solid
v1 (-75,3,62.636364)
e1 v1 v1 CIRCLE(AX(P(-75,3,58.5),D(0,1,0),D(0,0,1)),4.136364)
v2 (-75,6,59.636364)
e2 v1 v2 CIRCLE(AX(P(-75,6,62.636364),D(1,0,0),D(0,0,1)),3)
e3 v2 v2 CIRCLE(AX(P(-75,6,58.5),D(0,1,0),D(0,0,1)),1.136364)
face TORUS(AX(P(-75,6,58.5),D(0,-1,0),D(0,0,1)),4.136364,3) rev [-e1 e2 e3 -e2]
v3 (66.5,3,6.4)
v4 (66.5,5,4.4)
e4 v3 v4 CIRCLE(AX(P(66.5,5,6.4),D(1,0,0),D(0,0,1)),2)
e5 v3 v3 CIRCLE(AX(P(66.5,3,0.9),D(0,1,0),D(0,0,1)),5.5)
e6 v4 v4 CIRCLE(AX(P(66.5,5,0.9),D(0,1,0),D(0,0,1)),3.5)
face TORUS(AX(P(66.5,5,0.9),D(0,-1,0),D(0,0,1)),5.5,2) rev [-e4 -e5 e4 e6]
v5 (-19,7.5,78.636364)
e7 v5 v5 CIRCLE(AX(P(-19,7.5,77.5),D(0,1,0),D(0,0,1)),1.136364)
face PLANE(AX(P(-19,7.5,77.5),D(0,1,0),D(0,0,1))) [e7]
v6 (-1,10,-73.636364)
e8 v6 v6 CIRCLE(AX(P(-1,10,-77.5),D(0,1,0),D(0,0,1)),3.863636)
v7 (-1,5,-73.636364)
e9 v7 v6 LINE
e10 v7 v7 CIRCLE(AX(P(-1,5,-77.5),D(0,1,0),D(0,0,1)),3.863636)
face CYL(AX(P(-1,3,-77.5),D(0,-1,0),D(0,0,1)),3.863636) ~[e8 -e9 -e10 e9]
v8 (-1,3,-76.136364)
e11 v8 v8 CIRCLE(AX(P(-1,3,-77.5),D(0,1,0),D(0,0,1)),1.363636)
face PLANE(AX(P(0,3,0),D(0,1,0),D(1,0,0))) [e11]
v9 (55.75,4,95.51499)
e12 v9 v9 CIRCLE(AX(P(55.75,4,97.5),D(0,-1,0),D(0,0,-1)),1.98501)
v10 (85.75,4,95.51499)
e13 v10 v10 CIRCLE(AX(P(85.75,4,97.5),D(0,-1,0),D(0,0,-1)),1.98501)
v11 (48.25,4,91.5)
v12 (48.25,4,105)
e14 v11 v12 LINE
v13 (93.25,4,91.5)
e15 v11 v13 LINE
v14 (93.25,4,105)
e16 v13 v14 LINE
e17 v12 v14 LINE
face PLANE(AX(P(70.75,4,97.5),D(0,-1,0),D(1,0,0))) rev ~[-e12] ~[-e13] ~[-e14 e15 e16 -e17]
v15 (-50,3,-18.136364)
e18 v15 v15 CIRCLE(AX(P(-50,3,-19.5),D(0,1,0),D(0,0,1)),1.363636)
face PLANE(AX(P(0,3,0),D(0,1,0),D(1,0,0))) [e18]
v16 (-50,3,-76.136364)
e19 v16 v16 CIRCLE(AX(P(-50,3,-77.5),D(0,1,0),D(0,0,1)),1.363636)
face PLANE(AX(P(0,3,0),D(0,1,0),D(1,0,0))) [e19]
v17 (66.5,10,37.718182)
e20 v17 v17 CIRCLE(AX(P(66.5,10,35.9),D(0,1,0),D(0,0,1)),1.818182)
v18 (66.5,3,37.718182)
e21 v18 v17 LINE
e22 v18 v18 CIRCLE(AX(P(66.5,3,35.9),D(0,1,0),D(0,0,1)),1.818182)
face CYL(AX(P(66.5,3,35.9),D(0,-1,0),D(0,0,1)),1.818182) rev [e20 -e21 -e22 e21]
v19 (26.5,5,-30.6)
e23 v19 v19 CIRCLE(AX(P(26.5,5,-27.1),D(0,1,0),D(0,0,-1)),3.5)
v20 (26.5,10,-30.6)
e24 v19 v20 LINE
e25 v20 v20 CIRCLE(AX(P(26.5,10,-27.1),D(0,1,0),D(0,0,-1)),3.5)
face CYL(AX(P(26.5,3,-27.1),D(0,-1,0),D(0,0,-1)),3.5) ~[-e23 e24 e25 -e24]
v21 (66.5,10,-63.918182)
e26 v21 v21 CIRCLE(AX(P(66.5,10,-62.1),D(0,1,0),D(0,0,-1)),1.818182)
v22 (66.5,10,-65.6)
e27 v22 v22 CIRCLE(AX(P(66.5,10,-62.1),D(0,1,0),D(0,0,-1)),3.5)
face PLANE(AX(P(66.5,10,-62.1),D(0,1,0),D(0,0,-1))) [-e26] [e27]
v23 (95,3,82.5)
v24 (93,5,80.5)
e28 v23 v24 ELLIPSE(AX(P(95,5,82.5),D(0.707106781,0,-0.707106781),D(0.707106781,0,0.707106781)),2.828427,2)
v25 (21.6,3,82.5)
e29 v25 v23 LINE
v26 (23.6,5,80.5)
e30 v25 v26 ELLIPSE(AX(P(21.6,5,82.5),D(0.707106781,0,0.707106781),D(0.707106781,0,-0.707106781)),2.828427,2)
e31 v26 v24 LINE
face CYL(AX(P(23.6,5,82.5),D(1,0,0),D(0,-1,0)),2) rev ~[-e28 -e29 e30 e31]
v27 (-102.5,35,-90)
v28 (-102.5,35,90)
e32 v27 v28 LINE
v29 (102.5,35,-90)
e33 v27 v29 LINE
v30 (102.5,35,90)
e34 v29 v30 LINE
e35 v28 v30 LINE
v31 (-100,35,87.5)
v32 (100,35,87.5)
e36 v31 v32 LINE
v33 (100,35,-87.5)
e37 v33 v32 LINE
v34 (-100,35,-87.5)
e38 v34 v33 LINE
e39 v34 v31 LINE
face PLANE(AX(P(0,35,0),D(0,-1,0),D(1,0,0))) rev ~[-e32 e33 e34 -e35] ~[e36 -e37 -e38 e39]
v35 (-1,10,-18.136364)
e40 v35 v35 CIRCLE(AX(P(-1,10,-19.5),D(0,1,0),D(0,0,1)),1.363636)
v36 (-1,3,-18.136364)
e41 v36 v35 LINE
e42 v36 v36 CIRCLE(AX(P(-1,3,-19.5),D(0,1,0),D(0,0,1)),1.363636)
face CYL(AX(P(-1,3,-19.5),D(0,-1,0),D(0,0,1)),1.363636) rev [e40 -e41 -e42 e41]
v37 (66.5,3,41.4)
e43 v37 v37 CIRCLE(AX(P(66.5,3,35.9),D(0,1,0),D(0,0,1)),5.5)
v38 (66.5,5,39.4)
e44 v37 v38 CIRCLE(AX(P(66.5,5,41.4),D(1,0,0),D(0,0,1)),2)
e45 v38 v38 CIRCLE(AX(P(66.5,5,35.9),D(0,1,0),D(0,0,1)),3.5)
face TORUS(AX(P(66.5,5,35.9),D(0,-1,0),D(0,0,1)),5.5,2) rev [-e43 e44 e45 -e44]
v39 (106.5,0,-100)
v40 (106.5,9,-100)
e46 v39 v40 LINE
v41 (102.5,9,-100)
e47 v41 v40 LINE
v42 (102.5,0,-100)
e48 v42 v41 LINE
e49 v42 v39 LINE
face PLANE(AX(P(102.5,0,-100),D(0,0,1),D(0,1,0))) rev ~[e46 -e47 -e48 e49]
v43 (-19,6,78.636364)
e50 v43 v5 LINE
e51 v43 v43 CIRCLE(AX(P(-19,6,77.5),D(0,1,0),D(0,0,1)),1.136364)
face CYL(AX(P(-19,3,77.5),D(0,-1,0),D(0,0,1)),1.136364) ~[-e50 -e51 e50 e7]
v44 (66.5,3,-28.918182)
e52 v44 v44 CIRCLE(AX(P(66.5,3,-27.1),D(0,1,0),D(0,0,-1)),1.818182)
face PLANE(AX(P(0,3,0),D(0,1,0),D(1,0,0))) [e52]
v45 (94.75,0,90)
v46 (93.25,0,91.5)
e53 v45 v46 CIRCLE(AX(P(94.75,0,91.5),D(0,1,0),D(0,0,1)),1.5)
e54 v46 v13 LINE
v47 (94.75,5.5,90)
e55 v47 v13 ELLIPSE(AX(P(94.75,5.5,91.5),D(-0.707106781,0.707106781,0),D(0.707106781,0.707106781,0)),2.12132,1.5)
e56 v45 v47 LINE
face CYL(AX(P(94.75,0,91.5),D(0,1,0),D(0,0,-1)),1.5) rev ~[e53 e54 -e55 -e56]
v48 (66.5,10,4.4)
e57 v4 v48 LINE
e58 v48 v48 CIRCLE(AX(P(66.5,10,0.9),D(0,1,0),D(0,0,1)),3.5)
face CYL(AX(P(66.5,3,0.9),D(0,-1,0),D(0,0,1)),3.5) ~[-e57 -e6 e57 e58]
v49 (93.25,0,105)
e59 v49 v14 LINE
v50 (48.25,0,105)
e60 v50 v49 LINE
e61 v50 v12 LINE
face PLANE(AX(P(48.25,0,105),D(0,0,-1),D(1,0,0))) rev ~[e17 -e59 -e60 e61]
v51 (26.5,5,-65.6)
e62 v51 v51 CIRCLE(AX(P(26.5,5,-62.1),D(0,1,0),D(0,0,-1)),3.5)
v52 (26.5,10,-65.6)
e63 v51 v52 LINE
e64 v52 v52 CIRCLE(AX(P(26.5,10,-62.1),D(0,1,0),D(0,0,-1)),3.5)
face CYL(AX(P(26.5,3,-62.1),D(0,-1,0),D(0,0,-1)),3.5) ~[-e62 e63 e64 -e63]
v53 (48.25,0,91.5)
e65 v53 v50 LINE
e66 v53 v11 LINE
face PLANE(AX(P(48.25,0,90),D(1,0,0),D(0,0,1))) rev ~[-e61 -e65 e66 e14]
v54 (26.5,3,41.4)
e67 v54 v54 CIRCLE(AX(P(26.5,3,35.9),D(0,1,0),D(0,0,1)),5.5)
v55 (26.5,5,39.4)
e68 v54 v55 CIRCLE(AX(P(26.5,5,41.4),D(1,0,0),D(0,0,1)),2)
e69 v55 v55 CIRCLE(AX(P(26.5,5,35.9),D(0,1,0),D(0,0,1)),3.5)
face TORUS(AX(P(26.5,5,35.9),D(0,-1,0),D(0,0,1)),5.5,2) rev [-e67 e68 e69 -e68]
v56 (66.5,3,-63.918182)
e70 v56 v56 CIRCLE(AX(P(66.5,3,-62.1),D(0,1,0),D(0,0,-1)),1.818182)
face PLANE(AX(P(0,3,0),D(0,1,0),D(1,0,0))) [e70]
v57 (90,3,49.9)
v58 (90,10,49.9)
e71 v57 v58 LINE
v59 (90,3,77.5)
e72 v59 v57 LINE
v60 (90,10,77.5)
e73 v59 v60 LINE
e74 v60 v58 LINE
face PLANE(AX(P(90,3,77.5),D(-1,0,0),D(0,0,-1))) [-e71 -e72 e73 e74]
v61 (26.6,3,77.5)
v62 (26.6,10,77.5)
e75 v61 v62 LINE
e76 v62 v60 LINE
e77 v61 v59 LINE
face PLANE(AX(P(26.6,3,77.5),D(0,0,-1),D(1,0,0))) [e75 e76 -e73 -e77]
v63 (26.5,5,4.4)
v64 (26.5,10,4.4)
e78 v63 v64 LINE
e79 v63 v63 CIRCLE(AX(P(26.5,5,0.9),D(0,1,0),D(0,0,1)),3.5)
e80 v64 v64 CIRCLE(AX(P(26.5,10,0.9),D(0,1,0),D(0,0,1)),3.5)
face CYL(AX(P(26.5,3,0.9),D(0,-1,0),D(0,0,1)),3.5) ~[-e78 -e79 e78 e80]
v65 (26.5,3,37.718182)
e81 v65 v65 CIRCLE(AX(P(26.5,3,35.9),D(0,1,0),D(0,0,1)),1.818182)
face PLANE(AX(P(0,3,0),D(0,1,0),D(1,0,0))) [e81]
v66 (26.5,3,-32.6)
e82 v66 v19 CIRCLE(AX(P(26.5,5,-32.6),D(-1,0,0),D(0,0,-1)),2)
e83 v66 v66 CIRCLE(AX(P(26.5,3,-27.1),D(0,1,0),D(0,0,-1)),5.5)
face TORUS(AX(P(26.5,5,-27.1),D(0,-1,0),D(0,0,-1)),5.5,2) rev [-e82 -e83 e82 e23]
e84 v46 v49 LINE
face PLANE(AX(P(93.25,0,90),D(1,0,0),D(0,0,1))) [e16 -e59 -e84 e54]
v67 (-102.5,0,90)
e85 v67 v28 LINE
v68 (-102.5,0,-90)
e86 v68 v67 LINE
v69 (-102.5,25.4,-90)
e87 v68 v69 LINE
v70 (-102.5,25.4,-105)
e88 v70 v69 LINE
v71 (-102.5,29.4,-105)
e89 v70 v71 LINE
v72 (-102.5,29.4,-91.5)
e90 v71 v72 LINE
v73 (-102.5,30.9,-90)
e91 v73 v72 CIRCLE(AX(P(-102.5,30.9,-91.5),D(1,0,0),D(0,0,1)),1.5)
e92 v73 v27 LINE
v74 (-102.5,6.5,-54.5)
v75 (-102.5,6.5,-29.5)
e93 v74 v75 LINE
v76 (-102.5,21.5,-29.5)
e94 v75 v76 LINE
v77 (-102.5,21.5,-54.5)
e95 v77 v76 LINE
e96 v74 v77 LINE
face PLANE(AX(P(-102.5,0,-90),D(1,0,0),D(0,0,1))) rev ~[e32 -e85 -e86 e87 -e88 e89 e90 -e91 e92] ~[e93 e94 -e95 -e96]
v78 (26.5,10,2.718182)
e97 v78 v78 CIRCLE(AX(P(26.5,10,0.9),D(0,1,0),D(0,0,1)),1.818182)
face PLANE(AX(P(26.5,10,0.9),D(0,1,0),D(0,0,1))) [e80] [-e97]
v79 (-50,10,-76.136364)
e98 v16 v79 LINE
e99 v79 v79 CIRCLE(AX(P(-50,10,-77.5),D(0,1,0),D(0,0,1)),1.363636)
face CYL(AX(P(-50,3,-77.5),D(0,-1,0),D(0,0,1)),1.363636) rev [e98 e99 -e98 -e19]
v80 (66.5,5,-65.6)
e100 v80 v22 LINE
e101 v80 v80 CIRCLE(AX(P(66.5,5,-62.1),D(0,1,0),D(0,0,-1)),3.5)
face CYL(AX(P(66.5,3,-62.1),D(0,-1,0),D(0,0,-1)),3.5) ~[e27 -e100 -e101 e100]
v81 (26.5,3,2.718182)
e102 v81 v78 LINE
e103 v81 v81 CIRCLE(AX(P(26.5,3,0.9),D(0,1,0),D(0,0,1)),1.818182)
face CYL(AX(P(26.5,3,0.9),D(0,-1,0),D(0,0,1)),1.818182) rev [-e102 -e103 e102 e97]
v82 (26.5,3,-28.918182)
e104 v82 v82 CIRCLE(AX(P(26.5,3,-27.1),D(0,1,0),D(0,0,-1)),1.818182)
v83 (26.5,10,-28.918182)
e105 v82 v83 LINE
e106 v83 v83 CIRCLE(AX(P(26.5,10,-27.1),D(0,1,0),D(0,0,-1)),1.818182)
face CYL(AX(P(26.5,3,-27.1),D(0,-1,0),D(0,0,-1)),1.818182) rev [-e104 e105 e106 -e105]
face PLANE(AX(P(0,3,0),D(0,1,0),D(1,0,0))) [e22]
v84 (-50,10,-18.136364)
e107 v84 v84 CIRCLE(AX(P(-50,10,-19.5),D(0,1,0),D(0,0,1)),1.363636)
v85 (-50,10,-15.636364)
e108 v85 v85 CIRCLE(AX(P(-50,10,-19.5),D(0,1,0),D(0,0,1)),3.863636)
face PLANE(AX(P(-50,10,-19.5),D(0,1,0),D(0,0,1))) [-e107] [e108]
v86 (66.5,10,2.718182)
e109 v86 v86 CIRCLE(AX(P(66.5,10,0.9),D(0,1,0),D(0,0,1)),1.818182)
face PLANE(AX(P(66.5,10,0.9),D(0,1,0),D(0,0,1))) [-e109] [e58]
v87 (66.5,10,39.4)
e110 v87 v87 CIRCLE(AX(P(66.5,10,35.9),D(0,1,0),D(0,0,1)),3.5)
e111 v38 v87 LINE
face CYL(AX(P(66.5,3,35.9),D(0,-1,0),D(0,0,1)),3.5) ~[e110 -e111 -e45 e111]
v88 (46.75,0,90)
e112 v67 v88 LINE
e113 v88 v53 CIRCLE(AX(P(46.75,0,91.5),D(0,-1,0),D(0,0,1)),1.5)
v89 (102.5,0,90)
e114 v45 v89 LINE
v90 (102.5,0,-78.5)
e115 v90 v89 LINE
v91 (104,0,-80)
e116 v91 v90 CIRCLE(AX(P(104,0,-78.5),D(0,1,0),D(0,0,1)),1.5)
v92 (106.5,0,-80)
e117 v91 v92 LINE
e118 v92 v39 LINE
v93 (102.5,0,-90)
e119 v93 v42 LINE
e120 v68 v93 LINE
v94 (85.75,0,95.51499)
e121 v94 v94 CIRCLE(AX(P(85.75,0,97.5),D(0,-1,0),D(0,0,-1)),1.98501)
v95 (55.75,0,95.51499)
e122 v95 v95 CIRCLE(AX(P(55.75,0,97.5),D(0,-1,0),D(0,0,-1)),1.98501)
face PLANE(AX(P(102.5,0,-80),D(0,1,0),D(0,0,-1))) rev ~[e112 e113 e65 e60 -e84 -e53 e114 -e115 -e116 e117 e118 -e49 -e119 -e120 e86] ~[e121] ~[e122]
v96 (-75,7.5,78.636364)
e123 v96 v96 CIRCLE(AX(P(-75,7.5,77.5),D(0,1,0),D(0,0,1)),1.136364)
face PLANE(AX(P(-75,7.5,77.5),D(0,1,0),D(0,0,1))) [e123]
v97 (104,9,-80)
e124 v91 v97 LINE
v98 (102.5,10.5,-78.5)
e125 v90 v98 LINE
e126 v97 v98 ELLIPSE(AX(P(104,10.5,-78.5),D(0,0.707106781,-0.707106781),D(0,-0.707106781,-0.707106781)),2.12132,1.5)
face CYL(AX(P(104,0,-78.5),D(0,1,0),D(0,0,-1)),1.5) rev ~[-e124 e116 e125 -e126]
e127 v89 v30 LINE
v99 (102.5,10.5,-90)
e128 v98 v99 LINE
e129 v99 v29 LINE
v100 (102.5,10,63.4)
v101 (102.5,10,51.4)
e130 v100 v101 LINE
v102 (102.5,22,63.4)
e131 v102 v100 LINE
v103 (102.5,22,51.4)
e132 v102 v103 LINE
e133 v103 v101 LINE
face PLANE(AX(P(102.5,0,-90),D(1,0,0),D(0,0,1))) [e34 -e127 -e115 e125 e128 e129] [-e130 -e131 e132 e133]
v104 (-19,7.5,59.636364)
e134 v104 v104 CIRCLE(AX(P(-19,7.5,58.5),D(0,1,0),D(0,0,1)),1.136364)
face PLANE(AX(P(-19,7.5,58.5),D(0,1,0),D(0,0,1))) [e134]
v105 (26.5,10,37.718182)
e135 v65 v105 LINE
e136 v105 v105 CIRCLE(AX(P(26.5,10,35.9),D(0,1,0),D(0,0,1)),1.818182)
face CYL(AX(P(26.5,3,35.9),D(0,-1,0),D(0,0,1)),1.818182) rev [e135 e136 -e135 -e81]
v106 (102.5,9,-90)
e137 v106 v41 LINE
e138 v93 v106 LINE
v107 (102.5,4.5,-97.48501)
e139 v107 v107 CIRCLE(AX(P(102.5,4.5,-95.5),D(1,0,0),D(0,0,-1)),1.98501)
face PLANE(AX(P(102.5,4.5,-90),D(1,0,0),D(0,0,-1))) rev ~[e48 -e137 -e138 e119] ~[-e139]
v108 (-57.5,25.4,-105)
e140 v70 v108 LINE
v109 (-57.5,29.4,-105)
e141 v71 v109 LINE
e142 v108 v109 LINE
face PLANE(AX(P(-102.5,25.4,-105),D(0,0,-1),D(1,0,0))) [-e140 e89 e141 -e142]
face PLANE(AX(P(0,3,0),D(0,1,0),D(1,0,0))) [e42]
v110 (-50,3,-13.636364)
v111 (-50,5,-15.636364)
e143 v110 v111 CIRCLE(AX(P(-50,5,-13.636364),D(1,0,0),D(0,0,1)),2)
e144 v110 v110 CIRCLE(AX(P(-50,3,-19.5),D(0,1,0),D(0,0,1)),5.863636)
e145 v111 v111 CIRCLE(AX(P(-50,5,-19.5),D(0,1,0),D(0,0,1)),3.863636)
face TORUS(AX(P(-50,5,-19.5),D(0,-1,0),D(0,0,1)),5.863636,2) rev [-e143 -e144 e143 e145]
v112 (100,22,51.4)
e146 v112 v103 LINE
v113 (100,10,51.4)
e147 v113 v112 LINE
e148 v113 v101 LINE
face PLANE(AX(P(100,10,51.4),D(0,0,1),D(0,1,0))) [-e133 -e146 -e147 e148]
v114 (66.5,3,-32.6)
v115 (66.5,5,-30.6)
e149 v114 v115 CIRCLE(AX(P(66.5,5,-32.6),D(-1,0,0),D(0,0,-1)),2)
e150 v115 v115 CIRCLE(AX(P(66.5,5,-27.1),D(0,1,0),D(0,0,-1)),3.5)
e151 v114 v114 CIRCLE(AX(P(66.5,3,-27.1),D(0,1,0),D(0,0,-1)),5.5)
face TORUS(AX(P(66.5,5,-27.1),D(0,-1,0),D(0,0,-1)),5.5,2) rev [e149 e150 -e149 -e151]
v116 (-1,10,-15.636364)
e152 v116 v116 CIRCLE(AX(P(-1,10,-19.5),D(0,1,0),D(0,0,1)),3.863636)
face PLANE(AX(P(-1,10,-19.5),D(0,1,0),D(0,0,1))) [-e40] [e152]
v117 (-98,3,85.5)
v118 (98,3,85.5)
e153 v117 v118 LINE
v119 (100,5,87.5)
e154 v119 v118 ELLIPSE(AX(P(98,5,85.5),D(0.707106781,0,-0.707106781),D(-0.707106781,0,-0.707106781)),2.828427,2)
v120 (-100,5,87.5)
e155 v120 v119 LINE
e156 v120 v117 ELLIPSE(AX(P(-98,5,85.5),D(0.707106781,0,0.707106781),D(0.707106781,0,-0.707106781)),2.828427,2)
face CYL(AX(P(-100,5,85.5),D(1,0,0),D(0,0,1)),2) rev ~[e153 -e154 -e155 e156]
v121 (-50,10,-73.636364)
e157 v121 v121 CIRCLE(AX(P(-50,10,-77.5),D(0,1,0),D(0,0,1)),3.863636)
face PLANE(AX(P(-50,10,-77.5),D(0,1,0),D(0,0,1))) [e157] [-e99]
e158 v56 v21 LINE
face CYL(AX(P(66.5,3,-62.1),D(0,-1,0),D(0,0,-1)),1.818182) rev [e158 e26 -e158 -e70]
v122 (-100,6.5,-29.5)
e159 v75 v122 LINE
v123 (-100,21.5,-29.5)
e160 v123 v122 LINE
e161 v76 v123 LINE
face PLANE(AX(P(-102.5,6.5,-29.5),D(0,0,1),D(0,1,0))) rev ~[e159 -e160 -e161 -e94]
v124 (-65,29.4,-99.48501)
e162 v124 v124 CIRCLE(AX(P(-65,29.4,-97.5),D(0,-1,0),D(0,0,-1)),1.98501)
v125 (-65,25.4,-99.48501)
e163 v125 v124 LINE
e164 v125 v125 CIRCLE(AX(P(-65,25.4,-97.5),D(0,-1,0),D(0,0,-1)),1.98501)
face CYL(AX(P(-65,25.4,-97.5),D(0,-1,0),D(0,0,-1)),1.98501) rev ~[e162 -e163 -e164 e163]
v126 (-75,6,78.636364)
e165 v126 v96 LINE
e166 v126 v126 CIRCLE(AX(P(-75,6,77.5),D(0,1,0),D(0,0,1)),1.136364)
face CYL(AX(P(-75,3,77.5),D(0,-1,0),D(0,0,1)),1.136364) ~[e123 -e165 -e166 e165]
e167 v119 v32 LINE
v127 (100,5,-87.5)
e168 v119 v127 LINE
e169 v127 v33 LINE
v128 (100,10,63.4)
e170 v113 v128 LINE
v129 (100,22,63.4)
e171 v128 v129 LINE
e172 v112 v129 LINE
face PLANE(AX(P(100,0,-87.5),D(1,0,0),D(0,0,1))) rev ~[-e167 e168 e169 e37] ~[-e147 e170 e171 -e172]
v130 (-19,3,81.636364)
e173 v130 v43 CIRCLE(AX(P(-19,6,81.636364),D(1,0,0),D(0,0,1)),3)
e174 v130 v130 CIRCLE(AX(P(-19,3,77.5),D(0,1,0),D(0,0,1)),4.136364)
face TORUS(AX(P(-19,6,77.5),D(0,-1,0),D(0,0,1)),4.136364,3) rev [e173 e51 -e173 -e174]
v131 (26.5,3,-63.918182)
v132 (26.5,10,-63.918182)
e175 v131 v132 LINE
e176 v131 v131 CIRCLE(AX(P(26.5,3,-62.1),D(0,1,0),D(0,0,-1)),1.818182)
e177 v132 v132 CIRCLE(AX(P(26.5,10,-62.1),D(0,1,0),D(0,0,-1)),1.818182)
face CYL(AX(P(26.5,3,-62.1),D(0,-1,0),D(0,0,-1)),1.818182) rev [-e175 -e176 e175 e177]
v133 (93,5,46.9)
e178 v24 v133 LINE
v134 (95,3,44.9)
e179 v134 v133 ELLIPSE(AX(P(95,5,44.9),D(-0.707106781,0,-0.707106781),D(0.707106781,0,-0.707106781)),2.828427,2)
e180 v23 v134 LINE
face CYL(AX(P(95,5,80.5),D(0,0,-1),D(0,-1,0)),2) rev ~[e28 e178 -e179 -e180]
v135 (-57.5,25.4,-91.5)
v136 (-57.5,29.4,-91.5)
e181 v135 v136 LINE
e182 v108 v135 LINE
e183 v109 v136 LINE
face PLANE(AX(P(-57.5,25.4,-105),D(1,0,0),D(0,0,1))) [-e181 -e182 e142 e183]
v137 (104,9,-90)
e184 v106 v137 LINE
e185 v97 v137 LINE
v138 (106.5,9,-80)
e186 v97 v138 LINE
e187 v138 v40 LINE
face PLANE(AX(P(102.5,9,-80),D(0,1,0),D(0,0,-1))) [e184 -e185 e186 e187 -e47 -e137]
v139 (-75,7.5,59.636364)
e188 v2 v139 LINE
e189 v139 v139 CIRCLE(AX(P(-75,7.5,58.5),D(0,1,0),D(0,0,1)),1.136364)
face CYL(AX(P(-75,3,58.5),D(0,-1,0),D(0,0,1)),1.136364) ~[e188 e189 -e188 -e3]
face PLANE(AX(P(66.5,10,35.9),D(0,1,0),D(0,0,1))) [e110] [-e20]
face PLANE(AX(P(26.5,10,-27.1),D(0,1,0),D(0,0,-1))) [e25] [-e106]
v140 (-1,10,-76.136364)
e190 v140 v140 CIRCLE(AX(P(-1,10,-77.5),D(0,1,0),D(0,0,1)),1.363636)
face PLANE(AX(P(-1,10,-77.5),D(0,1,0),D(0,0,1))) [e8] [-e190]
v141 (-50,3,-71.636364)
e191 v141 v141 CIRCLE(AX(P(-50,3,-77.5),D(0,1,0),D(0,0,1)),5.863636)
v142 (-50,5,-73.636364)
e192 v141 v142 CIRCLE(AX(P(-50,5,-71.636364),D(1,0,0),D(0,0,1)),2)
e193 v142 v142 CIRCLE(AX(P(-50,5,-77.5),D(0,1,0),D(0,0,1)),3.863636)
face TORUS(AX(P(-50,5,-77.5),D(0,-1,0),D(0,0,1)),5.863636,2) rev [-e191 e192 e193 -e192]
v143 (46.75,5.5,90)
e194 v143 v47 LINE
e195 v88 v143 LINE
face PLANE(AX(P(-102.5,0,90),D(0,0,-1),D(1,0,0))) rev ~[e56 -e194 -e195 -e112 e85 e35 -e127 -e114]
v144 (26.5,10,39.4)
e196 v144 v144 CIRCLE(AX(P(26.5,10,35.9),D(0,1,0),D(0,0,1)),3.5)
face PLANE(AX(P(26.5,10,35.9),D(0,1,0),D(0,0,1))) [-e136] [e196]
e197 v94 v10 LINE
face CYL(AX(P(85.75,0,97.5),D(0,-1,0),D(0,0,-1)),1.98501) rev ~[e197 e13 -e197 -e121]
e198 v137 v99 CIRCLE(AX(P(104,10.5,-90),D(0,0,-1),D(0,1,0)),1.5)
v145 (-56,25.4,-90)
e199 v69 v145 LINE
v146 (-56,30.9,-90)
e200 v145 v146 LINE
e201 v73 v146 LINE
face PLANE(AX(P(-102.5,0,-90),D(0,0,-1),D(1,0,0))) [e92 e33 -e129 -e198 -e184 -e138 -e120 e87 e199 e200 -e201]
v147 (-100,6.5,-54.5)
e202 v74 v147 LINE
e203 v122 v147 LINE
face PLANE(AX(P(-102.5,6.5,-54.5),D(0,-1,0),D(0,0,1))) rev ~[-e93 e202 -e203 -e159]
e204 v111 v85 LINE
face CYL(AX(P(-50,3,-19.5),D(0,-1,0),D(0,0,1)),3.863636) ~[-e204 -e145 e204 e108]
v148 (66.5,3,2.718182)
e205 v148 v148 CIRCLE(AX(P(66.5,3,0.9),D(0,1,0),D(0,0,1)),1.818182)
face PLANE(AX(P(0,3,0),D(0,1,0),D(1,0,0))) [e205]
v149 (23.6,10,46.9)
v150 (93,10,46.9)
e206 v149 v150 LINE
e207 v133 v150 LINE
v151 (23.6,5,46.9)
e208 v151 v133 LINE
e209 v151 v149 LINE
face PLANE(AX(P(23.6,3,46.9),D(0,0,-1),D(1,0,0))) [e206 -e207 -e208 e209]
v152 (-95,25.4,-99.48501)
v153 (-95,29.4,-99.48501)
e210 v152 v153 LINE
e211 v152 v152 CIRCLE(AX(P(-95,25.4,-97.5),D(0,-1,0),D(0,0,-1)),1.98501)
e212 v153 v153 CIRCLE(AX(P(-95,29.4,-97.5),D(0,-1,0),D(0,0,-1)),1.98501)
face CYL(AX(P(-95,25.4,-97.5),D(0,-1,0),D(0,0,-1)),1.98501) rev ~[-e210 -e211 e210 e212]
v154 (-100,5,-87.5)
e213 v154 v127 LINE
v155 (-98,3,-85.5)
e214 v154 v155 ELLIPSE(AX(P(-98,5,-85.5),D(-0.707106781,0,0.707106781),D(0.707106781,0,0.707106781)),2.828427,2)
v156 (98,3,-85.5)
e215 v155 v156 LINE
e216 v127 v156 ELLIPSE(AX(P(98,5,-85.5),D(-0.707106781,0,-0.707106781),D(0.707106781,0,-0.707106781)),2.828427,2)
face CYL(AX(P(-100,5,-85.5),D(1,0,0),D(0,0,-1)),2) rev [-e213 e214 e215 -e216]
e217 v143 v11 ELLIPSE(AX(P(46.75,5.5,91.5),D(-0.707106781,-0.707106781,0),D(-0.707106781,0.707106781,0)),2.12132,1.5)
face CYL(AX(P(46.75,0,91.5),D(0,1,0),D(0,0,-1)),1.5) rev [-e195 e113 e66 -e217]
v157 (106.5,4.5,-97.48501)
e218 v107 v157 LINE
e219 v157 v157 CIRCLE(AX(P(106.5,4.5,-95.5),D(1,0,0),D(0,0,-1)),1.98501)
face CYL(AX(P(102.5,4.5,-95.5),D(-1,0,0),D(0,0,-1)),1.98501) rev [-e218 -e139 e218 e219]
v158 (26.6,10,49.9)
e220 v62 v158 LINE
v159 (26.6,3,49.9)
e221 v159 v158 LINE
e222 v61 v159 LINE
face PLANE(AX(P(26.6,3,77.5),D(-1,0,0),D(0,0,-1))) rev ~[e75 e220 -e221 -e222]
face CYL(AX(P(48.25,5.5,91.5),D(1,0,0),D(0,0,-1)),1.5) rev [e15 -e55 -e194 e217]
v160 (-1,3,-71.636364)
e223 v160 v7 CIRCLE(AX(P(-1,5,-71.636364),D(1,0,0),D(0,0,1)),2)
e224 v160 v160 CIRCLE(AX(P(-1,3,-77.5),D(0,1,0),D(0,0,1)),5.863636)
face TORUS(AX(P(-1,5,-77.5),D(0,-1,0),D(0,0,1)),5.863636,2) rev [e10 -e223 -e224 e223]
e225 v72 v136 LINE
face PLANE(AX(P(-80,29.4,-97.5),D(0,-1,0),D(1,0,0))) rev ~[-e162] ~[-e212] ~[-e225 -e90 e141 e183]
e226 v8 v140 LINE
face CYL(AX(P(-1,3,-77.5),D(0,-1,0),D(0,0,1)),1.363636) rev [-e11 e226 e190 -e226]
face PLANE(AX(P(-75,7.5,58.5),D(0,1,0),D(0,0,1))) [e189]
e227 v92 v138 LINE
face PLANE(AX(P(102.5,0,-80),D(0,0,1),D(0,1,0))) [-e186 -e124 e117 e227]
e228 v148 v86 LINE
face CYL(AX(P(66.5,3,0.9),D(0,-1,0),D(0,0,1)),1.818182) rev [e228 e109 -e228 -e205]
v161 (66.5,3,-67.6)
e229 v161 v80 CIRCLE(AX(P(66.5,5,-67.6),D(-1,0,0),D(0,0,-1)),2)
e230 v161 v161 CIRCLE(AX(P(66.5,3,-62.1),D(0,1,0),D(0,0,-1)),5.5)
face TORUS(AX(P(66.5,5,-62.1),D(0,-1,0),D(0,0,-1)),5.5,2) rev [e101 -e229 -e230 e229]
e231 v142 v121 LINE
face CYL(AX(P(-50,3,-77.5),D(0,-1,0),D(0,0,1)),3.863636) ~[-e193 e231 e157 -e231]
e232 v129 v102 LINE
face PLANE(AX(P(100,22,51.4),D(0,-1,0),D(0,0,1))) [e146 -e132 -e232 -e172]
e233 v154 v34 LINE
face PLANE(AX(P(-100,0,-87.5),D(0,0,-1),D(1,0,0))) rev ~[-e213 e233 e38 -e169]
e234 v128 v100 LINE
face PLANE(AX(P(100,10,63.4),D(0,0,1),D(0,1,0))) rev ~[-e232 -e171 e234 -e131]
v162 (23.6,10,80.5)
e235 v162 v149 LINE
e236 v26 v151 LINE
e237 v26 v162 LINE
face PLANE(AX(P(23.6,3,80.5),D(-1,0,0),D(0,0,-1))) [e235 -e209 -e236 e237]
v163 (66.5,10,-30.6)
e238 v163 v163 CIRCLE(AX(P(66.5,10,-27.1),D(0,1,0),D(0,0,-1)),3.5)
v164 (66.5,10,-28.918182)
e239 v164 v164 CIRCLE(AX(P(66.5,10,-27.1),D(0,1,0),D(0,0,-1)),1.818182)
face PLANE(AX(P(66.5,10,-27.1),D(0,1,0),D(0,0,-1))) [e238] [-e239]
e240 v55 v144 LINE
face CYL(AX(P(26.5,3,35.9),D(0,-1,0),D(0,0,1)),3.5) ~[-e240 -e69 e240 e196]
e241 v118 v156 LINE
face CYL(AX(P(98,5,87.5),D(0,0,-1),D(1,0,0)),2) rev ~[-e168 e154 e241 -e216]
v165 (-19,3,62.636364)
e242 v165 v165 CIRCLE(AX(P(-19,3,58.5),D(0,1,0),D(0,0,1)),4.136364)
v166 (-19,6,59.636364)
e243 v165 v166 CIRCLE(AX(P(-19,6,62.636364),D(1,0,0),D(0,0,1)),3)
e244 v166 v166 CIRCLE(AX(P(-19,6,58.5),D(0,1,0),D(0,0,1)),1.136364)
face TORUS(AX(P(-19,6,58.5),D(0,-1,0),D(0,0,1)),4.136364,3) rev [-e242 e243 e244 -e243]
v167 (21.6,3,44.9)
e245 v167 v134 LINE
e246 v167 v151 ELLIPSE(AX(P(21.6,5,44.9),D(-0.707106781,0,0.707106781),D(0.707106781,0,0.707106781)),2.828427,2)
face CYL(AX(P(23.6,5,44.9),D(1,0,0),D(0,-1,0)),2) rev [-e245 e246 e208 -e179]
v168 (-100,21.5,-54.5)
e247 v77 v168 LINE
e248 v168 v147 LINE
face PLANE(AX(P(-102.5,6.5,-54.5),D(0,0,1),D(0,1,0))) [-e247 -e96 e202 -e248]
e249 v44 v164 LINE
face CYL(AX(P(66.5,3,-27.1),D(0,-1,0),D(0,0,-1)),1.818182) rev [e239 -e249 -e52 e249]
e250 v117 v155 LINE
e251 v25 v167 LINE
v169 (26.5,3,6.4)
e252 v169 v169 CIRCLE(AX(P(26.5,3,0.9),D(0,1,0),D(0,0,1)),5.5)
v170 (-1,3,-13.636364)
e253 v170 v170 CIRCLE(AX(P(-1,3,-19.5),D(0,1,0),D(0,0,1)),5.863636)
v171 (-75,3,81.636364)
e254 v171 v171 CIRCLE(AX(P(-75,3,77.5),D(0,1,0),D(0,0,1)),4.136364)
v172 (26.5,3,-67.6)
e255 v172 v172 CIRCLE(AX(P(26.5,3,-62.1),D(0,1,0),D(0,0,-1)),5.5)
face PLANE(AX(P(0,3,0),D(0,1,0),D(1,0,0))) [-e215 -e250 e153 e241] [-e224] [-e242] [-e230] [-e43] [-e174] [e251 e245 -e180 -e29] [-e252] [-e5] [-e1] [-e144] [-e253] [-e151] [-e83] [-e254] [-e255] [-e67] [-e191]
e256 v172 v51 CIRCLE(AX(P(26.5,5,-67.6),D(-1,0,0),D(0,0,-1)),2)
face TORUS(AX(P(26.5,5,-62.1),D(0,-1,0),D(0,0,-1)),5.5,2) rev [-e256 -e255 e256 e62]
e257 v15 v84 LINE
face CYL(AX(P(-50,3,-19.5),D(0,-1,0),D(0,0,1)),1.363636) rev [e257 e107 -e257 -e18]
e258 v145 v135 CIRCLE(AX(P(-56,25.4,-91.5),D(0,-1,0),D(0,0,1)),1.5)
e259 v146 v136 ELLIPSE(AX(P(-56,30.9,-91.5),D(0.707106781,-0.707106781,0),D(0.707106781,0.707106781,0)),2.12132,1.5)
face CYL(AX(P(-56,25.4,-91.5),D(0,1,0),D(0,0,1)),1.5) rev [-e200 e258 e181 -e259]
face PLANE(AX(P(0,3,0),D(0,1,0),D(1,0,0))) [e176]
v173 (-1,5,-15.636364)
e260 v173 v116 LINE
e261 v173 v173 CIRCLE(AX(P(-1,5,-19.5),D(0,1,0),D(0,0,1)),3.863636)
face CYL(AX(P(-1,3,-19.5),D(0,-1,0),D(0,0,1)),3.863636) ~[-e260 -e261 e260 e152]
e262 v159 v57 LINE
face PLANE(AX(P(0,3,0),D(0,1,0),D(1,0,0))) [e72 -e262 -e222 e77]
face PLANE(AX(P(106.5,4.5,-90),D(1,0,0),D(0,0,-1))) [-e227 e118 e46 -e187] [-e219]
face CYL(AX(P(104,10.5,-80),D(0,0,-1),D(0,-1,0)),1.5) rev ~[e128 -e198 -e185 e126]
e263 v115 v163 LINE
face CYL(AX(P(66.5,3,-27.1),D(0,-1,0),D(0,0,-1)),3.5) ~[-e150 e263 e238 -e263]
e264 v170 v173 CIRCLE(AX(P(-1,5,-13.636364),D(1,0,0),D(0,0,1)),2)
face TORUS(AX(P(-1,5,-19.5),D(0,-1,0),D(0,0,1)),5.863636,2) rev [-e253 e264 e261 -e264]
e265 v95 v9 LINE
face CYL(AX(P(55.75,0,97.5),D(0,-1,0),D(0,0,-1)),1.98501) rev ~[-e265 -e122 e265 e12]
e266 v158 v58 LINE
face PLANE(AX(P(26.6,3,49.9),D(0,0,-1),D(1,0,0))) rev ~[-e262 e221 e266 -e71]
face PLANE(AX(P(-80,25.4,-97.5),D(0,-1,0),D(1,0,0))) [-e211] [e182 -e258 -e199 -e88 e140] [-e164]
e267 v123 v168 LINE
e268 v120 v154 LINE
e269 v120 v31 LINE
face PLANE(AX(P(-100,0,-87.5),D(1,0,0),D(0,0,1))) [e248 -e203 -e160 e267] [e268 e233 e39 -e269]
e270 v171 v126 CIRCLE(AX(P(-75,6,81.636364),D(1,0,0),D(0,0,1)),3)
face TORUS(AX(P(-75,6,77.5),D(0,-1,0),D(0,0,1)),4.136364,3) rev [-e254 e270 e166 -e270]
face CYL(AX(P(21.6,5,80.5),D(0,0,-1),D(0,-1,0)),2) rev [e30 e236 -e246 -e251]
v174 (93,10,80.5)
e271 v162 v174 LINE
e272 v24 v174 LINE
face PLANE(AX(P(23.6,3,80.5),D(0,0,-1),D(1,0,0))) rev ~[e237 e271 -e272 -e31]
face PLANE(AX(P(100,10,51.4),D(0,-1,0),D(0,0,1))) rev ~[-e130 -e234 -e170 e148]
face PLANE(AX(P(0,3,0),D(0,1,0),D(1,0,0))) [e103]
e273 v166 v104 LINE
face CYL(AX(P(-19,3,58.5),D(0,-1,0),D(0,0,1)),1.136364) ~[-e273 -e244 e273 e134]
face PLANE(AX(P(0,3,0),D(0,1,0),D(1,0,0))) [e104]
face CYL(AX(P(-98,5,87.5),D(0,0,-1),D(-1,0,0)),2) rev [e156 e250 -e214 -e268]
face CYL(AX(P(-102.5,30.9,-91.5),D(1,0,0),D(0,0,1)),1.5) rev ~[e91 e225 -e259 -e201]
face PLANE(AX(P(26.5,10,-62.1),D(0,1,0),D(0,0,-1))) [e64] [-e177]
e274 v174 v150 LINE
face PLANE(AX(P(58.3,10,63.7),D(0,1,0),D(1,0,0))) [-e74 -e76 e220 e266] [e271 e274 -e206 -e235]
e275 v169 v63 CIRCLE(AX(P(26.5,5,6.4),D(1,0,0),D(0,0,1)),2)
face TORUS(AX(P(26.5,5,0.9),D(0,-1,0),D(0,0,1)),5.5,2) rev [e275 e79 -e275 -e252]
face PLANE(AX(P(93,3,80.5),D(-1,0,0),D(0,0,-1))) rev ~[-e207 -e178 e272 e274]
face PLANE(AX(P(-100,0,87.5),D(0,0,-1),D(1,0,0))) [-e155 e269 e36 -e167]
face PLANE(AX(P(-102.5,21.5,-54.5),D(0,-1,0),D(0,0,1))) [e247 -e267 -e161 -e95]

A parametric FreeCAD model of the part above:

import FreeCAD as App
import Part
import Sketcher
Q = App.Units.Quantity


def edges_at(feature, points):
    """Names of the edges that pass closest to the given points."""
    edges = feature.Shape.Edges
    near = lambda p: min(range(len(edges)), key=lambda i: edges[i].distToShape(Part.Vertex(*p))[0])
    return sorted({f"Edge{near(p) + 1}" for p in points})

doc = App.newDocument("Part")
body = doc.addObject("PartDesign::Body", "Body")

sketch1 = body.newObject("Sketcher::SketchObject", "Sketch")
sketch1.AttachmentSupport = (doc.getObject("XZ_Plane"), [""])
sketch1.MapMode = "FlatFace"
sketch1.addGeometry([
    Part.LineSegment(App.Vector(-100, -88, 0), App.Vector(-100, 88, 0)),
    Part.LineSegment(App.Vector(-100, 88, 0), App.Vector(100, 88, 0)),
    Part.LineSegment(App.Vector(100, 88, 0), App.Vector(100, -88, 0)),
    Part.LineSegment(App.Vector(100, -88, 0), App.Vector(-100, -88, 0)),
], False)
sketch1.addConstraint([
    Sketcher.Constraint("Coincident", 0, 2, 1, 1),
    Sketcher.Constraint("Coincident", 1, 2, 2, 1),
    Sketcher.Constraint("Coincident", 2, 2, 3, 1),
    Sketcher.Constraint("Coincident", 3, 2, 0, 1),
    Sketcher.Constraint("Vertical", 0),
    Sketcher.Constraint("Horizontal", 1),
    Sketcher.Constraint("Vertical", 2),
    Sketcher.Constraint("Horizontal", 3),
    Sketcher.Constraint("Symmetric", 0, 2, 2, 2, -1, 1),
    Sketcher.Constraint("DistanceX", 1, 1, 1, 2, Q("200 mm")),
    Sketcher.Constraint("DistanceY", 0, 1, 0, 2, Q("175 mm")),
])
pad1 = body.newObject("PartDesign::Pad", "Pad")
pad1.Profile = sketch1
pad1.Length = 3
pad1.Reversed = True

sketch2 = body.newObject("Sketcher::SketchObject", "Sketch001")
sketch2.AttachmentSupport = (doc.getObject("XZ_Plane"), [""])
sketch2.MapMode = "FlatFace"
sketch2.AttachmentOffset = App.Placement(App.Vector(0, 0, -3), App.Rotation())
sketch2.addGeometry([
    Part.LineSegment(App.Vector(24, 47, 0), App.Vector(24, 80, 0)),
    Part.LineSegment(App.Vector(24, 80, 0), App.Vector(93, 80, 0)),
    Part.LineSegment(App.Vector(93, 80, 0), App.Vector(93, 47, 0)),
    Part.LineSegment(App.Vector(93, 47, 0), App.Vector(24, 47, 0)),
    Part.LineSegment(App.Vector(90, 78, 0), App.Vector(27, 78, 0)),
    Part.LineSegment(App.Vector(27, 78, 0), App.Vector(27, 50, 0)),
    Part.LineSegment(App.Vector(27, 50, 0), App.Vector(90, 50, 0)),
    Part.LineSegment(App.Vector(90, 50, 0), App.Vector(90, 78, 0)),
], False)
sketch2.addConstraint([
    Sketcher.Constraint("Coincident", 0, 2, 1, 1),
    Sketcher.Constraint("Coincident", 1, 2, 2, 1),
    Sketcher.Constraint("Coincident", 2, 2, 3, 1),
    Sketcher.Constraint("Coincident", 3, 2, 0, 1),
    Sketcher.Constraint("Coincident", 4, 2, 5, 1),
    Sketcher.Constraint("Coincident", 5, 2, 6, 1),
    Sketcher.Constraint("Coincident", 6, 2, 7, 1),
    Sketcher.Constraint("Coincident", 7, 2, 4, 1),
    Sketcher.Constraint("Vertical", 0),
    Sketcher.Constraint("Horizontal", 1),
    Sketcher.Constraint("Vertical", 2),
    Sketcher.Constraint("Horizontal", 3),
    Sketcher.Constraint("Horizontal", 4),
    Sketcher.Constraint("Vertical", 5),
    Sketcher.Constraint("Horizontal", 6),
    Sketcher.Constraint("Vertical", 7),
    Sketcher.Constraint("DistanceX", 1, 1, 1, 2, Q("69.4 mm")),
    Sketcher.Constraint("DistanceX", 4, 2, 4, 1, Q("63.4 mm")),
    Sketcher.Constraint("DistanceY", 0, 1, 0, 2, Q("33.6 mm")),
    Sketcher.Constraint("DistanceY", 5, 2, 5, 1, Q("27.6 mm")),
    Sketcher.Constraint("DistanceX", -1, 1, 1, 2, Q("93 mm")),
    Sketcher.Constraint("DistanceX", -1, 1, 6, 2, Q("90 mm")),
    Sketcher.Constraint("DistanceY", 4, 2, 0, 2, Q("3 mm")),
    Sketcher.Constraint("DistanceY", -1, 1, 0, 2, Q("80.5 mm")),
])
pad2 = body.newObject("PartDesign::Pad", "Pad001")
pad2.Profile = sketch2
pad2.Length = 7
pad2.Reversed = True

sketch3 = body.newObject("Sketcher::SketchObject", "Sketch002")
sketch3.AttachmentSupport = (doc.getObject("XZ_Plane"), [""])
sketch3.MapMode = "FlatFace"
sketch3.AttachmentOffset = App.Placement(App.Vector(0, 0, -3), App.Rotation())
sketch3.addGeometry([
    Part.Circle(App.Vector(26.5, 0.9, 0), App.Vector(0, 0, 1), 3.5),
    Part.Circle(App.Vector(26.5, 0.9, 0), App.Vector(0, 0, 1), 1.8),
    Part.Circle(App.Vector(26.5, 35.9, 0), App.Vector(0, 0, 1), 3.5),
    Part.Circle(App.Vector(26.5, 35.9, 0), App.Vector(0, 0, 1), 1.8),
    Part.Circle(App.Vector(66.5, 0.9, 0), App.Vector(0, 0, 1), 3.5),
    Part.Circle(App.Vector(66.5, 0.9, 0), App.Vector(0, 0, 1), 1.8),
    Part.Circle(App.Vector(66.5, 35.9, 0), App.Vector(0, 0, 1), 3.5),
    Part.Circle(App.Vector(66.5, 35.9, 0), App.Vector(0, 0, 1), 1.8),
    Part.Circle(App.Vector(66.5, -27.1, 0), App.Vector(0, 0, 1), 3.5),
    Part.Circle(App.Vector(66.5, -27.1, 0), App.Vector(0, 0, 1), 1.8),
    Part.Circle(App.Vector(66.5, -62.1, 0), App.Vector(0, 0, 1), 3.5),
    Part.Circle(App.Vector(66.5, -62.1, 0), App.Vector(0, 0, 1), 1.8),
    Part.Circle(App.Vector(26.5, -62.1, 0), App.Vector(0, 0, 1), 3.5),
    Part.Circle(App.Vector(26.5, -62.1, 0), App.Vector(0, 0, 1), 1.8),
    Part.Circle(App.Vector(26.5, -27.1, 0), App.Vector(0, 0, 1), 3.5),
    Part.Circle(App.Vector(26.5, -27.1, 0), App.Vector(0, 0, 1), 1.8),
], False)
sketch3.addConstraint([
    Sketcher.Constraint("Coincident", 1, 3, 0, 3),
    Sketcher.Constraint("Coincident", 3, 3, 2, 3),
    Sketcher.Constraint("Coincident", 5, 3, 4, 3),
    Sketcher.Constraint("Coincident", 7, 3, 6, 3),
    Sketcher.Constraint("Coincident", 9, 3, 8, 3),
    Sketcher.Constraint("Coincident", 11, 3, 10, 3),
    Sketcher.Constraint("Coincident", 13, 3, 12, 3),
    Sketcher.Constraint("Coincident", 15, 3, 14, 3),
    Sketcher.Constraint("Equal", 0, 2),
    Sketcher.Constraint("Equal", 1, 3),
    Sketcher.Constraint("Equal", 2, 4),
    Sketcher.Constraint("Equal", 3, 5),
    Sketcher.Constraint("Equal", 4, 6),
    Sketcher.Constraint("Equal", 5, 7),
    Sketcher.Constraint("Equal", 6, 8),
    Sketcher.Constraint("Equal", 7, 9),
    Sketcher.Constraint("Equal", 8, 10),
    Sketcher.Constraint("Equal", 9, 11),
    Sketcher.Constraint("Equal", 10, 12),
    Sketcher.Constraint("Equal", 11, 13),
    Sketcher.Constraint("Equal", 12, 14),
    Sketcher.Constraint("Equal", 13, 15),
    Sketcher.Constraint("Horizontal", 1, 3, 4, 3),
    Sketcher.Constraint("Horizontal", 3, 3, 6, 3),
    Sketcher.Constraint("Horizontal", 11, 3, 12, 3),
    Sketcher.Constraint("Horizontal", 9, 3, 14, 3),
    Sketcher.Constraint("Vertical", 1, 3, 2, 3),
    Sketcher.Constraint("Vertical", 5, 3, 6, 3),
    Sketcher.Constraint("Vertical", 7, 3, 8, 3),
    Sketcher.Constraint("Vertical", 9, 3, 10, 3),
    Sketcher.Constraint("Vertical", 3, 3, 12, 3),
    Sketcher.Constraint("Vertical", 13, 3, 14, 3),
    Sketcher.Constraint("Diameter", 0, Q("7 mm")),
    Sketcher.Constraint("DistanceY", 0, 3, 2, 3, Q("35 mm")),
    Sketcher.Constraint("DistanceX", 0, 3, 4, 3, Q("40 mm")),
    Sketcher.Constraint("DistanceY", 8, 3, 4, 3, Q("28 mm")),
    Sketcher.Constraint("DistanceY", 10, 3, 8, 3, Q("35 mm")),
    Sketcher.Constraint("DistanceX", -1, 1, 0, 3, Q("26.5 mm")),
    Sketcher.Constraint("DistanceY", -1, 1, 0, 3, Q("0.9 mm")),
    Sketcher.Constraint("Diameter", 1, Q("3.636364 mm")),
])
pad3 = body.newObject("PartDesign::Pad", "Pad002")
pad3.Profile = sketch3
pad3.Length = 7
pad3.Reversed = True

sketch4 = body.newObject("Sketcher::SketchObject", "Sketch003")
sketch4.AttachmentSupport = (doc.getObject("XZ_Plane"), [""])
sketch4.MapMode = "FlatFace"
sketch4.AttachmentOffset = App.Placement(App.Vector(0, 0, -3), App.Rotation())
sketch4.addGeometry([
    Part.Circle(App.Vector(-50, -77.5, 0), App.Vector(0, 0, 1), 3.9),
    Part.Circle(App.Vector(-50, -77.5, 0), App.Vector(0, 0, 1), 1.4),
    Part.Circle(App.Vector(-1, -77.5, 0), App.Vector(0, 0, 1), 3.9),
    Part.Circle(App.Vector(-1, -77.5, 0), App.Vector(0, 0, 1), 1.4),
    Part.Circle(App.Vector(-1, -19.5, 0), App.Vector(0, 0, 1), 3.9),
    Part.Circle(App.Vector(-1, -19.5, 0), App.Vector(0, 0, 1), 1.4),
    Part.Circle(App.Vector(-50, -19.5, 0), App.Vector(0, 0, 1), 3.9),
    Part.Circle(App.Vector(-50, -19.5, 0), App.Vector(0, 0, 1), 1.4),
], False)
sketch4.addConstraint([
    Sketcher.Constraint("Coincident", 1, 3, 0, 3),
    Sketcher.Constraint("Coincident", 3, 3, 2, 3),
    Sketcher.Constraint("Coincident", 5, 3, 4, 3),
    Sketcher.Constraint("Coincident", 7, 3, 6, 3),
    Sketcher.Constraint("Equal", 0, 2),
    Sketcher.Constraint("Equal", 1, 3),
    Sketcher.Constraint("Equal", 2, 4),
    Sketcher.Constraint("Equal", 3, 5),
    Sketcher.Constraint("Equal", 4, 6),
    Sketcher.Constraint("Equal", 5, 7),
    Sketcher.Constraint("Horizontal", 1, 3, 2, 3),
    Sketcher.Constraint("Horizontal", 5, 3, 6, 3),
    Sketcher.Constraint("Vertical", 3, 3, 4, 3),
    Sketcher.Constraint("Vertical", 1, 3, 6, 3),
    Sketcher.Constraint("DistanceX", 0, 3, -1, 1, Q("50 mm")),
    Sketcher.Constraint("DistanceX", 2, 3, -1, 1, Q("1 mm")),
    Sketcher.Constraint("DistanceY", 2, 3, 4, 3, Q("58 mm")),
    Sketcher.Constraint("DistanceY", 0, 3, -1, 1, Q("77.5 mm")),
    Sketcher.Constraint("Diameter", 0, Q("7.727273 mm")),
    Sketcher.Constraint("Diameter", 1, Q("2.727273 mm")),
])
pad4 = body.newObject("PartDesign::Pad", "Pad003")
pad4.Profile = sketch4
pad4.Length = 7
pad4.Reversed = True

sketch5 = body.newObject("Sketcher::SketchObject", "Sketch004")
sketch5.AttachmentSupport = (doc.getObject("XZ_Plane"), [""])
sketch5.MapMode = "FlatFace"
sketch5.addGeometry([
    Part.LineSegment(App.Vector(-102, 90, 0), App.Vector(-102, -90, 0)),
    Part.LineSegment(App.Vector(-102, -90, 0), App.Vector(102, -90, 0)),
    Part.LineSegment(App.Vector(102, -90, 0), App.Vector(102, 90, 0)),
    Part.LineSegment(App.Vector(102, 90, 0), App.Vector(-102, 90, 0)),
    Part.LineSegment(App.Vector(100, -88, 0), App.Vector(-100, -88, 0)),
    Part.LineSegment(App.Vector(-100, -88, 0), App.Vector(-100, 88, 0)),
    Part.LineSegment(App.Vector(-100, 88, 0), App.Vector(100, 88, 0)),
    Part.LineSegment(App.Vector(100, 88, 0), App.Vector(100, -88, 0)),
], False)
sketch5.addConstraint([
    Sketcher.Constraint("Coincident", 0, 2, 1, 1),
    Sketcher.Constraint("Coincident", 1, 2, 2, 1),
    Sketcher.Constraint("Coincident", 2, 2, 3, 1),
    Sketcher.Constraint("Coincident", 3, 2, 0, 1),
    Sketcher.Constraint("Coincident", 4, 2, 5, 1),
    Sketcher.Constraint("Coincident", 5, 2, 6, 1),
    Sketcher.Constraint("Coincident", 6, 2, 7, 1),
    Sketcher.Constraint("Coincident", 7, 2, 4, 1),
    Sketcher.Constraint("Vertical", 0),
    Sketcher.Constraint("Horizontal", 1),
    Sketcher.Constraint("Vertical", 2),
    Sketcher.Constraint("Horizontal", 3),
    Sketcher.Constraint("Horizontal", 4),
    Sketcher.Constraint("Vertical", 5),
    Sketcher.Constraint("Horizontal", 6),
    Sketcher.Constraint("Vertical", 7),
    Sketcher.Constraint("Symmetric", 0, 2, 2, 2, -1, 1),
    Sketcher.Constraint("Symmetric", 4, 2, 6, 2, -1, 1),
    Sketcher.Constraint("DistanceX", 1, 1, 1, 2, Q("205 mm")),
    Sketcher.Constraint("DistanceX", 4, 2, 4, 1, Q("200 mm")),
    Sketcher.Constraint("DistanceY", 0, 2, 0, 1, Q("180 mm")),
    Sketcher.Constraint("DistanceY", 5, 1, 5, 2, Q("175 mm")),
])
pad5 = body.newObject("PartDesign::Pad", "Pad004")
pad5.Profile = sketch5
pad5.Length = 35
pad5.Reversed = True
doc.recompute()

fillet = body.newObject("PartDesign::Fillet", "Fillet")
fillet.Base = (pad5, edges_at(pad5, [
    (-50, 3, -81.364),
    (-1, 3, -81.364),
    (-1, 3, -23.364),
    (-50, 3, -23.364),
    (100, 3, 0),
    (0, 3, -87.5),
    (58.3, 3, 46.9),
    (23.6, 3, 63.7),
    (58.3, 3, 80.5),
    (93, 3, 63.7),
    (26.5, 3, 32.4),
    (26.5, 3, -2.6),
    (-100, 3, 0),
    (66.5, 3, -2.6),
    (66.5, 3, 32.4),
    (66.5, 3, -23.6),
    (66.5, 3, -58.6),
    (26.5, 3, -58.6),
    (26.5, 3, -23.6),
    (0, 3, 87.5),
]))
fillet.Radius = 2

sketch6 = body.newObject("Sketcher::SketchObject", "Sketch005")
sketch6.AttachmentSupport = (doc.getObject("YZ_Plane"), [""])
sketch6.MapMode = "FlatFace"
sketch6.AttachmentOffset = App.Placement(App.Vector(0, 0, 100), App.Rotation())
sketch6.addGeometry([
    Part.LineSegment(App.Vector(22, 51, 0), App.Vector(10, 51, 0)),
    Part.LineSegment(App.Vector(10, 51, 0), App.Vector(10, 63, 0)),
    Part.LineSegment(App.Vector(10, 63, 0), App.Vector(22, 63, 0)),
    Part.LineSegment(App.Vector(22, 63, 0), App.Vector(22, 51, 0)),
], False)
sketch6.addConstraint([
    Sketcher.Constraint("Coincident", 0, 2, 1, 1),
    Sketcher.Constraint("Coincident", 1, 2, 2, 1),
    Sketcher.Constraint("Coincident", 2, 2, 3, 1),
    Sketcher.Constraint("Coincident", 3, 2, 0, 1),
    Sketcher.Constraint("Horizontal", 0),
    Sketcher.Constraint("Vertical", 1),
    Sketcher.Constraint("Horizontal", 2),
    Sketcher.Constraint("Vertical", 3),
    Sketcher.Constraint("Equal", 2, 1),
    Sketcher.Constraint("DistanceX", 0, 2, 0, 1, Q("12 mm")),
    Sketcher.Constraint("DistanceX", -1, 1, 0, 2, Q("10 mm")),
    Sketcher.Constraint("DistanceY", -1, 1, 0, 2, Q("51.4 mm")),
])
pocket1 = body.newObject("PartDesign::Pocket", "Pocket")
pocket1.Profile = sketch6
pocket1.Type = "ThroughAll"
pocket1.Reversed = True

sketch7 = body.newObject("Sketcher::SketchObject", "Sketch006")
sketch7.AttachmentSupport = (doc.getObject("XZ_Plane"), [""])
sketch7.MapMode = "FlatFace"
sketch7.AttachmentOffset = App.Placement(App.Vector(0, 0, -3), App.Rotation())
sketch7.addGeometry([
    Part.Circle(App.Vector(-19, 58.5, 0), App.Vector(0, 0, 1), 1.1),
    Part.Circle(App.Vector(-75, 58.5, 0), App.Vector(0, 0, 1), 1.1),
    Part.Circle(App.Vector(-75, 77.5, 0), App.Vector(0, 0, 1), 1.1),
    Part.Circle(App.Vector(-19, 77.5, 0), App.Vector(0, 0, 1), 1.1),
], False)
sketch7.addConstraint([
    Sketcher.Constraint("Equal", 0, 1),
    Sketcher.Constraint("Equal", 1, 2),
    Sketcher.Constraint("Equal", 2, 3),
    Sketcher.Constraint("Horizontal", 0, 3, 1, 3),
    Sketcher.Constraint("Horizontal", 2, 3, 3, 3),
    Sketcher.Constraint("Vertical", 1, 3, 2, 3),
    Sketcher.Constraint("Vertical", 0, 3, 3, 3),
    Sketcher.Constraint("DistanceX", 0, 3, -1, 1, Q("19 mm")),
    Sketcher.Constraint("DistanceX", 1, 3, -1, 1, Q("75 mm")),
    Sketcher.Constraint("DistanceY", 1, 3, 2, 3, Q("19 mm")),
    Sketcher.Constraint("DistanceY", -1, 1, 0, 3, Q("58.5 mm")),
    Sketcher.Constraint("Diameter", 0, Q("2.272727 mm")),
])
pad6 = body.newObject("PartDesign::Pad", "Pad005")
pad6.Profile = sketch7
pad6.Length = 4.5
pad6.Reversed = True
doc.recompute()

fillet2 = body.newObject("PartDesign::Fillet", "Fillet001")
fillet2.Base = (pad6, edges_at(pad6, [
    (-19, 3, 57.364),
    (-75, 3, 57.364),
    (-75, 3, 76.364),
    (-19, 3, 76.364),
]))
fillet2.Radius = 3

sketch8 = body.newObject("Sketcher::SketchObject", "Sketch007")
sketch8.AttachmentSupport = (doc.getObject("YZ_Plane"), [""])
sketch8.MapMode = "FlatFace"
sketch8.AttachmentOffset = App.Placement(App.Vector(0, 0, -102.5), App.Rotation())
sketch8.addGeometry([
    Part.LineSegment(App.Vector(22, -54, 0), App.Vector(6, -54, 0)),
    Part.LineSegment(App.Vector(6, -54, 0), App.Vector(6, -30, 0)),
    Part.LineSegment(App.Vector(6, -30, 0), App.Vector(22, -30, 0)),
    Part.LineSegment(App.Vector(22, -30, 0), App.Vector(22, -54, 0)),
], False)
sketch8.addConstraint([
    Sketcher.Constraint("Coincident", 0, 2, 1, 1),
    Sketcher.Constraint("Coincident", 1, 2, 2, 1),
    Sketcher.Constraint("Coincident", 2, 2, 3, 1),
    Sketcher.Constraint("Coincident", 3, 2, 0, 1),
    Sketcher.Constraint("Horizontal", 0),
    Sketcher.Constraint("Vertical", 1),
    Sketcher.Constraint("Horizontal", 2),
    Sketcher.Constraint("Vertical", 3),
    Sketcher.Constraint("DistanceX", 0, 2, 0, 1, Q("15 mm")),
    Sketcher.Constraint("DistanceY", 1, 1, 1, 2, Q("25 mm")),
    Sketcher.Constraint("DistanceX", -1, 1, 0, 2, Q("6.5 mm")),
    Sketcher.Constraint("DistanceY", 0, 2, -1, 1, Q("54.5 mm")),
])
pocket2 = body.newObject("PartDesign::Pocket", "Pocket001")
pocket2.Profile = sketch8
pocket2.Length = 10
pocket2.Reversed = True

sketch9 = body.newObject("Sketcher::SketchObject", "Sketch008")
sketch9.AttachmentSupport = (doc.getObject("YZ_Plane"), [""])
sketch9.MapMode = "FlatFace"
sketch9.AttachmentOffset = App.Placement(App.Vector(0, 0, 102.5), App.Rotation())
sketch9.addGeometry([
    Part.LineSegment(App.Vector(9, -80, 0), App.Vector(0, -80, 0)),
    Part.LineSegment(App.Vector(0, -80, 0), App.Vector(0, -100, 0)),
    Part.LineSegment(App.Vector(0, -100, 0), App.Vector(9, -100, 0)),
    Part.LineSegment(App.Vector(9, -100, 0), App.Vector(9, -80, 0)),
    Part.Circle(App.Vector(4.5, -95.5, 0), App.Vector(0, 0, 1), 2),
], False)
sketch9.addConstraint([
    Sketcher.Constraint("Coincident", 0, 2, 1, 1),
    Sketcher.Constraint("Coincident", 1, 2, 2, 1),
    Sketcher.Constraint("Coincident", 2, 2, 3, 1),
    Sketcher.Constraint("Coincident", 3, 2, 0, 1),
    Sketcher.Constraint("Horizontal", 0),
    Sketcher.Constraint("Vertical", 1),
    Sketcher.Constraint("Horizontal", 2),
    Sketcher.Constraint("Vertical", 3),
    Sketcher.Constraint("PointOnObject", 0, 2, -2),
    Sketcher.Constraint("DistanceX", 0, 2, 0, 1, Q("9 mm")),
    Sketcher.Constraint("DistanceY", 1, 2, 1, 1, Q("20 mm")),
    Sketcher.Constraint("DistanceY", 0, 2, -1, 1, Q("80 mm")),
    Sketcher.Constraint("DistanceX", -1, 1, 4, 3, Q("4.5 mm")),
    Sketcher.Constraint("DistanceY", 4, 3, -1, 1, Q("95.5 mm")),
    Sketcher.Constraint("Diameter", 4, Q("3.97002 mm")),
])
pad7 = body.newObject("PartDesign::Pad", "Pad006")
pad7.Profile = sketch9
pad7.Length = 4

sketch10 = body.newObject("Sketcher::SketchObject", "Sketch009")
sketch10.AttachmentSupport = (doc.getObject("XZ_Plane"), [""])
sketch10.MapMode = "FlatFace"
sketch10.addGeometry([
    Part.LineSegment(App.Vector(48.2, 105, 0), App.Vector(48.2, 90, 0)),
    Part.LineSegment(App.Vector(48.2, 90, 0), App.Vector(93.2, 90, 0)),
    Part.LineSegment(App.Vector(93.2, 90, 0), App.Vector(93.2, 105, 0)),
    Part.LineSegment(App.Vector(93.2, 105, 0), App.Vector(48.2, 105, 0)),
    Part.Circle(App.Vector(55.8, 97.5, 0), App.Vector(0, 0, 1), 2),
    Part.Circle(App.Vector(85.8, 97.5, 0), App.Vector(0, 0, 1), 2),
], False)
sketch10.addConstraint([
    Sketcher.Constraint("Coincident", 0, 2, 1, 1),
    Sketcher.Constraint("Coincident", 1, 2, 2, 1),
    Sketcher.Constraint("Coincident", 2, 2, 3, 1),
    Sketcher.Constraint("Coincident", 3, 2, 0, 1),
    Sketcher.Constraint("Vertical", 0),
    Sketcher.Constraint("Horizontal", 1),
    Sketcher.Constraint("Vertical", 2),
    Sketcher.Constraint("Horizontal", 3),
    Sketcher.Constraint("Equal", 4, 5),
    Sketcher.Constraint("Horizontal", 4, 3, 5, 3),
    Sketcher.Constraint("DistanceX", 1, 1, 1, 2, Q("45 mm")),
    Sketcher.Constraint("DistanceY", 0, 2, 0, 1, Q("15 mm")),
    Sketcher.Constraint("DistanceY", -1, 1, 0, 2, Q("90 mm")),
    Sketcher.Constraint("DistanceX", 4, 3, 5, 3, Q("30 mm")),
    Sketcher.Constraint("DistanceY", -1, 1, 4, 3, Q("97.5 mm")),
    Sketcher.Constraint("DistanceX", 0, 2, 4, 3, Q("7.5 mm")),
    Sketcher.Constraint("Diameter", 4, Q("3.97002 mm")),
    Sketcher.Constraint("DistanceX", -1, 1, 4, 3, Q("55.75 mm")),
])
pad8 = body.newObject("PartDesign::Pad", "Pad007")
pad8.Profile = sketch10
pad8.Length = 4
pad8.Reversed = True

sketch11 = body.newObject("Sketcher::SketchObject", "Sketch010")
sketch11.AttachmentSupport = (doc.getObject("XZ_Plane"), [""])
sketch11.MapMode = "FlatFace"
sketch11.AttachmentOffset = App.Placement(App.Vector(0, 0, -25.4), App.Rotation())
sketch11.addGeometry([
    Part.LineSegment(App.Vector(-102.5, -90, 0), App.Vector(-102.5, -105, 0)),
    Part.LineSegment(App.Vector(-102.5, -105, 0), App.Vector(-57.5, -105, 0)),
    Part.LineSegment(App.Vector(-57.5, -105, 0), App.Vector(-57.5, -90, 0)),
    Part.LineSegment(App.Vector(-57.5, -90, 0), App.Vector(-102.5, -90, 0)),
    Part.Circle(App.Vector(-95, -97.5, 0), App.Vector(0, 0, 1), 2),
    Part.Circle(App.Vector(-65, -97.5, 0), App.Vector(0, 0, 1), 2),
], False)
sketch11.addConstraint([
    Sketcher.Constraint("Coincident", 0, 2, 1, 1),
    Sketcher.Constraint("Coincident", 1, 2, 2, 1),
    Sketcher.Constraint("Coincident", 2, 2, 3, 1),
    Sketcher.Constraint("Coincident", 3, 2, 0, 1),
    Sketcher.Constraint("Vertical", 0),
    Sketcher.Constraint("Horizontal", 1),
    Sketcher.Constraint("Vertical", 2),
    Sketcher.Constraint("Horizontal", 3),
    Sketcher.Constraint("Equal", 4, 5),
    Sketcher.Constraint("Horizontal", 4, 3, 5, 3),
    Sketcher.Constraint("DistanceX", 1, 1, 1, 2, Q("45 mm")),
    Sketcher.Constraint("DistanceY", 0, 2, 0, 1, Q("15 mm")),
    Sketcher.Constraint("DistanceX", 4, 3, -1, 1, Q("95 mm")),
    Sketcher.Constraint("DistanceX", 5, 3, -1, 1, Q("65 mm")),
    Sketcher.Constraint("DistanceY", 0, 2, -1, 1, Q("105 mm")),
    Sketcher.Constraint("DistanceY", 4, 3, -1, 1, Q("97.5 mm")),
    Sketcher.Constraint("DistanceX", 0, 2, -1, 1, Q("102.5 mm")),
    Sketcher.Constraint("Diameter", 4, Q("3.97002 mm")),
])
pad9 = body.newObject("PartDesign::Pad", "Pad008")
pad9.Profile = sketch11
pad9.Length = 4
pad9.Reversed = True
doc.recompute()

fillet3 = body.newObject("PartDesign::Fillet", "Fillet002")
fillet3.Base = (pad9, edges_at(pad9, [
    (102.5, 9, -85),
    (102.5, 4.5, -80),
    (48.25, 2, 90),
    (70.75, 4, 90),
    (93.25, 2, 90),
    (-80, 29.4, -90),
    (-57.5, 27.4, -90),
]))
fillet3.Radius = 1.5

doc.recompute()
